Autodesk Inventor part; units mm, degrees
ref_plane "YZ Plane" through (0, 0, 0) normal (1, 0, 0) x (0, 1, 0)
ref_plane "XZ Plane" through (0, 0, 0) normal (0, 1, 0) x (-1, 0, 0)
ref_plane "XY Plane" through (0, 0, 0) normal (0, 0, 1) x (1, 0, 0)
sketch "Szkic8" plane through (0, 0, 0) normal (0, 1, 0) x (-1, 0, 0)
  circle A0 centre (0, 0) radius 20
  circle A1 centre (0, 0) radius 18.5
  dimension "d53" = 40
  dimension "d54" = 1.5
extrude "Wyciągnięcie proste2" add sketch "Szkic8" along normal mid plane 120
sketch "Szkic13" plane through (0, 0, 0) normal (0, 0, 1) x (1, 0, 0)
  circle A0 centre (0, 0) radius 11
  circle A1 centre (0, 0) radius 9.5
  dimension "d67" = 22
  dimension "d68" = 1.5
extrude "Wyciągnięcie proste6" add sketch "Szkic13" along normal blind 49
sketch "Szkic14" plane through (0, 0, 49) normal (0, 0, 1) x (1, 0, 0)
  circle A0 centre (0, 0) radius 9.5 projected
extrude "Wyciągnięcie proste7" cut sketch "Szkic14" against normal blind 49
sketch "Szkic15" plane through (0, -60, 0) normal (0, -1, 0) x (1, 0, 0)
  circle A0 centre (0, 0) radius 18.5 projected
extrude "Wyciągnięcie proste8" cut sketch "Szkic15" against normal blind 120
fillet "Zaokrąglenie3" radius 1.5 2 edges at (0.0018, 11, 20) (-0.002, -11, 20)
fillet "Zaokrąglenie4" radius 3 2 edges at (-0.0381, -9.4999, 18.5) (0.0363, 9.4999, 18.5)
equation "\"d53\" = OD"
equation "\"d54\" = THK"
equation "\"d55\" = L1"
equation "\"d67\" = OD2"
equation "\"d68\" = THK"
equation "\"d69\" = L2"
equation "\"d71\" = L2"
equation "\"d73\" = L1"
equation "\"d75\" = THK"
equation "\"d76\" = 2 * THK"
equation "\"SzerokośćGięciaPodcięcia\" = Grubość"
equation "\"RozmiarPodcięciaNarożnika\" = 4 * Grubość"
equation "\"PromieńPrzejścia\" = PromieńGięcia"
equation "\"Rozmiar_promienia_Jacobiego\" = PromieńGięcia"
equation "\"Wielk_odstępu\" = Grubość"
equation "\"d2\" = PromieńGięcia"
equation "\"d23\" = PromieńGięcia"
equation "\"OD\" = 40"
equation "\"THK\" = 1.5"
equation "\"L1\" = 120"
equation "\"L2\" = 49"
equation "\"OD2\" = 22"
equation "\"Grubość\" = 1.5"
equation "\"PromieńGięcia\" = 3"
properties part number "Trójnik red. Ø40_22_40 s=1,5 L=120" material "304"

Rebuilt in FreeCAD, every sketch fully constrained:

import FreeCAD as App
import Part
import Sketcher


def edges_at(feature, points):
    """Names of the edges that pass closest to the given points."""
    edges = feature.Shape.Edges
    near = lambda p: min(range(len(edges)), key=lambda i: edges[i].distToShape(Part.Vertex(*p))[0])
    return sorted({f"Edge{near(p) + 1}" for p in points})

doc = App.newDocument("Part")
params = doc.addObject("Spreadsheet::Sheet", "Params")
for row, (alias, value) in enumerate([
    ("sketch1_diameter", "40 mm"),
    ("sketch1_diameter2", "37 mm"),
    ("pad1_length", "120 mm"),
    ("sketch2_diameter", "22 mm"),
    ("sketch2_diameter2", "19 mm"),
    ("pad2_length", "49 mm"),
    ("sketch3_diameter", "19 mm"),
    ("pocket1_length", "49 mm"),
    ("sketch4_diameter", "37 mm"),
    ("pocket2_length", "120 mm"),
    ("fillet_radius", "1.5 mm"),
    ("fillet2_radius", "3 mm"),
], start=1):
    params.set(f"A{row}", alias)
    params.set(f"B{row}", "=" + value)
    params.setAlias(f"B{row}", alias)

body = doc.addObject("PartDesign::Body", "Body")

# Sketch on XZ plane
sketch1 = body.newObject("Sketcher::SketchObject", "Sketch")
sketch1.AttachmentSupport = (doc.getObject("XZ_Plane"), [""])
sketch1.MapMode = "FlatFace"
sketch1.addGeometry(Part.Circle(App.Vector(0, 0, 0), App.Vector(0, 0, 1), 20), False)
sketch1.addGeometry(Part.Circle(App.Vector(0, 0, 0), App.Vector(0, 0, 1), 18), False)
sketch1.addConstraint(Sketcher.Constraint("Coincident", 0, 3, -1, 1))
sketch1.addConstraint(Sketcher.Constraint("Coincident", 1, 3, -1, 1))
sketch1.addConstraint(Sketcher.Constraint("Diameter", 0, 40.0))
sketch1.addConstraint(Sketcher.Constraint("Diameter", 1, 37.0))
sketch1.setExpression("Constraints[2]", "Params.sketch1_diameter")
sketch1.setExpression("Constraints[3]", "Params.sketch1_diameter2")
pad1 = body.newObject("PartDesign::Pad", "Pad")
pad1.Profile = sketch1
pad1.setExpression("Length", "Params.pad1_length")
pad1.Midplane = True

# Sketch on XY plane
sketch2 = body.newObject("Sketcher::SketchObject", "Sketch001")
sketch2.AttachmentSupport = (doc.getObject("XY_Plane"), [""])
sketch2.MapMode = "FlatFace"
sketch2.addGeometry(Part.Circle(App.Vector(0, 0, 0), App.Vector(0, 0, 1), 11), False)
sketch2.addGeometry(Part.Circle(App.Vector(0, 0, 0), App.Vector(0, 0, 1), 10), False)
sketch2.addConstraint(Sketcher.Constraint("Coincident", 0, 3, -1, 1))
sketch2.addConstraint(Sketcher.Constraint("Coincident", 1, 3, -1, 1))
sketch2.addConstraint(Sketcher.Constraint("Diameter", 0, 22.0))
sketch2.addConstraint(Sketcher.Constraint("Diameter", 1, 19.0))
sketch2.setExpression("Constraints[2]", "Params.sketch2_diameter")
sketch2.setExpression("Constraints[3]", "Params.sketch2_diameter2")
pad2 = body.newObject("PartDesign::Pad", "Pad001")
pad2.Profile = sketch2
pad2.setExpression("Length", "Params.pad2_length")

# Sketch on XY plane
sketch3 = body.newObject("Sketcher::SketchObject", "Sketch002")
sketch3.AttachmentSupport = (doc.getObject("XY_Plane"), [""])
sketch3.MapMode = "FlatFace"
sketch3.AttachmentOffset = App.Placement(App.Vector(0, 0, 49), App.Rotation())
sketch3.addGeometry(Part.Circle(App.Vector(0, 0, 0), App.Vector(0, 0, 1), 10), False)
sketch3.addConstraint(Sketcher.Constraint("Coincident", 0, 3, -1, 1))
sketch3.addConstraint(Sketcher.Constraint("Diameter", 0, 19.0))
sketch3.setExpression("Constraints[1]", "Params.sketch3_diameter")
pocket1 = body.newObject("PartDesign::Pocket", "Pocket")
pocket1.Profile = sketch3
pocket1.setExpression("Length", "Params.pocket1_length")

# Sketch on XZ plane
sketch4 = body.newObject("Sketcher::SketchObject", "Sketch003")
sketch4.AttachmentSupport = (doc.getObject("XZ_Plane"), [""])
sketch4.MapMode = "FlatFace"
sketch4.AttachmentOffset = App.Placement(App.Vector(0, 0, 60), App.Rotation())
sketch4.addGeometry(Part.Circle(App.Vector(0, 0, 0), App.Vector(0, 0, 1), 18), False)
sketch4.addConstraint(Sketcher.Constraint("Coincident", 0, 3, -1, 1))
sketch4.addConstraint(Sketcher.Constraint("Diameter", 0, 37.0))
sketch4.setExpression("Constraints[1]", "Params.sketch4_diameter")
pocket2 = body.newObject("PartDesign::Pocket", "Pocket001")
pocket2.Profile = sketch4
pocket2.setExpression("Length", "Params.pocket2_length")
doc.recompute()

fillet = body.newObject("PartDesign::Fillet", "Fillet")
fillet.Base = (pocket2, edges_at(pocket2, [(0.002, 11, 20), (-0.002, -11, 20)]))
fillet.setExpression("Radius", "Params.fillet_radius")
doc.recompute()

fillet2 = body.newObject("PartDesign::Fillet", "Fillet001")
fillet2.Base = (fillet, edges_at(fillet, [(-0.038, -9.5, 18.5), (0.036, 9.5, 18.5)]))
fillet2.setExpression("Radius", "Params.fillet2_radius")

doc.recompute()
